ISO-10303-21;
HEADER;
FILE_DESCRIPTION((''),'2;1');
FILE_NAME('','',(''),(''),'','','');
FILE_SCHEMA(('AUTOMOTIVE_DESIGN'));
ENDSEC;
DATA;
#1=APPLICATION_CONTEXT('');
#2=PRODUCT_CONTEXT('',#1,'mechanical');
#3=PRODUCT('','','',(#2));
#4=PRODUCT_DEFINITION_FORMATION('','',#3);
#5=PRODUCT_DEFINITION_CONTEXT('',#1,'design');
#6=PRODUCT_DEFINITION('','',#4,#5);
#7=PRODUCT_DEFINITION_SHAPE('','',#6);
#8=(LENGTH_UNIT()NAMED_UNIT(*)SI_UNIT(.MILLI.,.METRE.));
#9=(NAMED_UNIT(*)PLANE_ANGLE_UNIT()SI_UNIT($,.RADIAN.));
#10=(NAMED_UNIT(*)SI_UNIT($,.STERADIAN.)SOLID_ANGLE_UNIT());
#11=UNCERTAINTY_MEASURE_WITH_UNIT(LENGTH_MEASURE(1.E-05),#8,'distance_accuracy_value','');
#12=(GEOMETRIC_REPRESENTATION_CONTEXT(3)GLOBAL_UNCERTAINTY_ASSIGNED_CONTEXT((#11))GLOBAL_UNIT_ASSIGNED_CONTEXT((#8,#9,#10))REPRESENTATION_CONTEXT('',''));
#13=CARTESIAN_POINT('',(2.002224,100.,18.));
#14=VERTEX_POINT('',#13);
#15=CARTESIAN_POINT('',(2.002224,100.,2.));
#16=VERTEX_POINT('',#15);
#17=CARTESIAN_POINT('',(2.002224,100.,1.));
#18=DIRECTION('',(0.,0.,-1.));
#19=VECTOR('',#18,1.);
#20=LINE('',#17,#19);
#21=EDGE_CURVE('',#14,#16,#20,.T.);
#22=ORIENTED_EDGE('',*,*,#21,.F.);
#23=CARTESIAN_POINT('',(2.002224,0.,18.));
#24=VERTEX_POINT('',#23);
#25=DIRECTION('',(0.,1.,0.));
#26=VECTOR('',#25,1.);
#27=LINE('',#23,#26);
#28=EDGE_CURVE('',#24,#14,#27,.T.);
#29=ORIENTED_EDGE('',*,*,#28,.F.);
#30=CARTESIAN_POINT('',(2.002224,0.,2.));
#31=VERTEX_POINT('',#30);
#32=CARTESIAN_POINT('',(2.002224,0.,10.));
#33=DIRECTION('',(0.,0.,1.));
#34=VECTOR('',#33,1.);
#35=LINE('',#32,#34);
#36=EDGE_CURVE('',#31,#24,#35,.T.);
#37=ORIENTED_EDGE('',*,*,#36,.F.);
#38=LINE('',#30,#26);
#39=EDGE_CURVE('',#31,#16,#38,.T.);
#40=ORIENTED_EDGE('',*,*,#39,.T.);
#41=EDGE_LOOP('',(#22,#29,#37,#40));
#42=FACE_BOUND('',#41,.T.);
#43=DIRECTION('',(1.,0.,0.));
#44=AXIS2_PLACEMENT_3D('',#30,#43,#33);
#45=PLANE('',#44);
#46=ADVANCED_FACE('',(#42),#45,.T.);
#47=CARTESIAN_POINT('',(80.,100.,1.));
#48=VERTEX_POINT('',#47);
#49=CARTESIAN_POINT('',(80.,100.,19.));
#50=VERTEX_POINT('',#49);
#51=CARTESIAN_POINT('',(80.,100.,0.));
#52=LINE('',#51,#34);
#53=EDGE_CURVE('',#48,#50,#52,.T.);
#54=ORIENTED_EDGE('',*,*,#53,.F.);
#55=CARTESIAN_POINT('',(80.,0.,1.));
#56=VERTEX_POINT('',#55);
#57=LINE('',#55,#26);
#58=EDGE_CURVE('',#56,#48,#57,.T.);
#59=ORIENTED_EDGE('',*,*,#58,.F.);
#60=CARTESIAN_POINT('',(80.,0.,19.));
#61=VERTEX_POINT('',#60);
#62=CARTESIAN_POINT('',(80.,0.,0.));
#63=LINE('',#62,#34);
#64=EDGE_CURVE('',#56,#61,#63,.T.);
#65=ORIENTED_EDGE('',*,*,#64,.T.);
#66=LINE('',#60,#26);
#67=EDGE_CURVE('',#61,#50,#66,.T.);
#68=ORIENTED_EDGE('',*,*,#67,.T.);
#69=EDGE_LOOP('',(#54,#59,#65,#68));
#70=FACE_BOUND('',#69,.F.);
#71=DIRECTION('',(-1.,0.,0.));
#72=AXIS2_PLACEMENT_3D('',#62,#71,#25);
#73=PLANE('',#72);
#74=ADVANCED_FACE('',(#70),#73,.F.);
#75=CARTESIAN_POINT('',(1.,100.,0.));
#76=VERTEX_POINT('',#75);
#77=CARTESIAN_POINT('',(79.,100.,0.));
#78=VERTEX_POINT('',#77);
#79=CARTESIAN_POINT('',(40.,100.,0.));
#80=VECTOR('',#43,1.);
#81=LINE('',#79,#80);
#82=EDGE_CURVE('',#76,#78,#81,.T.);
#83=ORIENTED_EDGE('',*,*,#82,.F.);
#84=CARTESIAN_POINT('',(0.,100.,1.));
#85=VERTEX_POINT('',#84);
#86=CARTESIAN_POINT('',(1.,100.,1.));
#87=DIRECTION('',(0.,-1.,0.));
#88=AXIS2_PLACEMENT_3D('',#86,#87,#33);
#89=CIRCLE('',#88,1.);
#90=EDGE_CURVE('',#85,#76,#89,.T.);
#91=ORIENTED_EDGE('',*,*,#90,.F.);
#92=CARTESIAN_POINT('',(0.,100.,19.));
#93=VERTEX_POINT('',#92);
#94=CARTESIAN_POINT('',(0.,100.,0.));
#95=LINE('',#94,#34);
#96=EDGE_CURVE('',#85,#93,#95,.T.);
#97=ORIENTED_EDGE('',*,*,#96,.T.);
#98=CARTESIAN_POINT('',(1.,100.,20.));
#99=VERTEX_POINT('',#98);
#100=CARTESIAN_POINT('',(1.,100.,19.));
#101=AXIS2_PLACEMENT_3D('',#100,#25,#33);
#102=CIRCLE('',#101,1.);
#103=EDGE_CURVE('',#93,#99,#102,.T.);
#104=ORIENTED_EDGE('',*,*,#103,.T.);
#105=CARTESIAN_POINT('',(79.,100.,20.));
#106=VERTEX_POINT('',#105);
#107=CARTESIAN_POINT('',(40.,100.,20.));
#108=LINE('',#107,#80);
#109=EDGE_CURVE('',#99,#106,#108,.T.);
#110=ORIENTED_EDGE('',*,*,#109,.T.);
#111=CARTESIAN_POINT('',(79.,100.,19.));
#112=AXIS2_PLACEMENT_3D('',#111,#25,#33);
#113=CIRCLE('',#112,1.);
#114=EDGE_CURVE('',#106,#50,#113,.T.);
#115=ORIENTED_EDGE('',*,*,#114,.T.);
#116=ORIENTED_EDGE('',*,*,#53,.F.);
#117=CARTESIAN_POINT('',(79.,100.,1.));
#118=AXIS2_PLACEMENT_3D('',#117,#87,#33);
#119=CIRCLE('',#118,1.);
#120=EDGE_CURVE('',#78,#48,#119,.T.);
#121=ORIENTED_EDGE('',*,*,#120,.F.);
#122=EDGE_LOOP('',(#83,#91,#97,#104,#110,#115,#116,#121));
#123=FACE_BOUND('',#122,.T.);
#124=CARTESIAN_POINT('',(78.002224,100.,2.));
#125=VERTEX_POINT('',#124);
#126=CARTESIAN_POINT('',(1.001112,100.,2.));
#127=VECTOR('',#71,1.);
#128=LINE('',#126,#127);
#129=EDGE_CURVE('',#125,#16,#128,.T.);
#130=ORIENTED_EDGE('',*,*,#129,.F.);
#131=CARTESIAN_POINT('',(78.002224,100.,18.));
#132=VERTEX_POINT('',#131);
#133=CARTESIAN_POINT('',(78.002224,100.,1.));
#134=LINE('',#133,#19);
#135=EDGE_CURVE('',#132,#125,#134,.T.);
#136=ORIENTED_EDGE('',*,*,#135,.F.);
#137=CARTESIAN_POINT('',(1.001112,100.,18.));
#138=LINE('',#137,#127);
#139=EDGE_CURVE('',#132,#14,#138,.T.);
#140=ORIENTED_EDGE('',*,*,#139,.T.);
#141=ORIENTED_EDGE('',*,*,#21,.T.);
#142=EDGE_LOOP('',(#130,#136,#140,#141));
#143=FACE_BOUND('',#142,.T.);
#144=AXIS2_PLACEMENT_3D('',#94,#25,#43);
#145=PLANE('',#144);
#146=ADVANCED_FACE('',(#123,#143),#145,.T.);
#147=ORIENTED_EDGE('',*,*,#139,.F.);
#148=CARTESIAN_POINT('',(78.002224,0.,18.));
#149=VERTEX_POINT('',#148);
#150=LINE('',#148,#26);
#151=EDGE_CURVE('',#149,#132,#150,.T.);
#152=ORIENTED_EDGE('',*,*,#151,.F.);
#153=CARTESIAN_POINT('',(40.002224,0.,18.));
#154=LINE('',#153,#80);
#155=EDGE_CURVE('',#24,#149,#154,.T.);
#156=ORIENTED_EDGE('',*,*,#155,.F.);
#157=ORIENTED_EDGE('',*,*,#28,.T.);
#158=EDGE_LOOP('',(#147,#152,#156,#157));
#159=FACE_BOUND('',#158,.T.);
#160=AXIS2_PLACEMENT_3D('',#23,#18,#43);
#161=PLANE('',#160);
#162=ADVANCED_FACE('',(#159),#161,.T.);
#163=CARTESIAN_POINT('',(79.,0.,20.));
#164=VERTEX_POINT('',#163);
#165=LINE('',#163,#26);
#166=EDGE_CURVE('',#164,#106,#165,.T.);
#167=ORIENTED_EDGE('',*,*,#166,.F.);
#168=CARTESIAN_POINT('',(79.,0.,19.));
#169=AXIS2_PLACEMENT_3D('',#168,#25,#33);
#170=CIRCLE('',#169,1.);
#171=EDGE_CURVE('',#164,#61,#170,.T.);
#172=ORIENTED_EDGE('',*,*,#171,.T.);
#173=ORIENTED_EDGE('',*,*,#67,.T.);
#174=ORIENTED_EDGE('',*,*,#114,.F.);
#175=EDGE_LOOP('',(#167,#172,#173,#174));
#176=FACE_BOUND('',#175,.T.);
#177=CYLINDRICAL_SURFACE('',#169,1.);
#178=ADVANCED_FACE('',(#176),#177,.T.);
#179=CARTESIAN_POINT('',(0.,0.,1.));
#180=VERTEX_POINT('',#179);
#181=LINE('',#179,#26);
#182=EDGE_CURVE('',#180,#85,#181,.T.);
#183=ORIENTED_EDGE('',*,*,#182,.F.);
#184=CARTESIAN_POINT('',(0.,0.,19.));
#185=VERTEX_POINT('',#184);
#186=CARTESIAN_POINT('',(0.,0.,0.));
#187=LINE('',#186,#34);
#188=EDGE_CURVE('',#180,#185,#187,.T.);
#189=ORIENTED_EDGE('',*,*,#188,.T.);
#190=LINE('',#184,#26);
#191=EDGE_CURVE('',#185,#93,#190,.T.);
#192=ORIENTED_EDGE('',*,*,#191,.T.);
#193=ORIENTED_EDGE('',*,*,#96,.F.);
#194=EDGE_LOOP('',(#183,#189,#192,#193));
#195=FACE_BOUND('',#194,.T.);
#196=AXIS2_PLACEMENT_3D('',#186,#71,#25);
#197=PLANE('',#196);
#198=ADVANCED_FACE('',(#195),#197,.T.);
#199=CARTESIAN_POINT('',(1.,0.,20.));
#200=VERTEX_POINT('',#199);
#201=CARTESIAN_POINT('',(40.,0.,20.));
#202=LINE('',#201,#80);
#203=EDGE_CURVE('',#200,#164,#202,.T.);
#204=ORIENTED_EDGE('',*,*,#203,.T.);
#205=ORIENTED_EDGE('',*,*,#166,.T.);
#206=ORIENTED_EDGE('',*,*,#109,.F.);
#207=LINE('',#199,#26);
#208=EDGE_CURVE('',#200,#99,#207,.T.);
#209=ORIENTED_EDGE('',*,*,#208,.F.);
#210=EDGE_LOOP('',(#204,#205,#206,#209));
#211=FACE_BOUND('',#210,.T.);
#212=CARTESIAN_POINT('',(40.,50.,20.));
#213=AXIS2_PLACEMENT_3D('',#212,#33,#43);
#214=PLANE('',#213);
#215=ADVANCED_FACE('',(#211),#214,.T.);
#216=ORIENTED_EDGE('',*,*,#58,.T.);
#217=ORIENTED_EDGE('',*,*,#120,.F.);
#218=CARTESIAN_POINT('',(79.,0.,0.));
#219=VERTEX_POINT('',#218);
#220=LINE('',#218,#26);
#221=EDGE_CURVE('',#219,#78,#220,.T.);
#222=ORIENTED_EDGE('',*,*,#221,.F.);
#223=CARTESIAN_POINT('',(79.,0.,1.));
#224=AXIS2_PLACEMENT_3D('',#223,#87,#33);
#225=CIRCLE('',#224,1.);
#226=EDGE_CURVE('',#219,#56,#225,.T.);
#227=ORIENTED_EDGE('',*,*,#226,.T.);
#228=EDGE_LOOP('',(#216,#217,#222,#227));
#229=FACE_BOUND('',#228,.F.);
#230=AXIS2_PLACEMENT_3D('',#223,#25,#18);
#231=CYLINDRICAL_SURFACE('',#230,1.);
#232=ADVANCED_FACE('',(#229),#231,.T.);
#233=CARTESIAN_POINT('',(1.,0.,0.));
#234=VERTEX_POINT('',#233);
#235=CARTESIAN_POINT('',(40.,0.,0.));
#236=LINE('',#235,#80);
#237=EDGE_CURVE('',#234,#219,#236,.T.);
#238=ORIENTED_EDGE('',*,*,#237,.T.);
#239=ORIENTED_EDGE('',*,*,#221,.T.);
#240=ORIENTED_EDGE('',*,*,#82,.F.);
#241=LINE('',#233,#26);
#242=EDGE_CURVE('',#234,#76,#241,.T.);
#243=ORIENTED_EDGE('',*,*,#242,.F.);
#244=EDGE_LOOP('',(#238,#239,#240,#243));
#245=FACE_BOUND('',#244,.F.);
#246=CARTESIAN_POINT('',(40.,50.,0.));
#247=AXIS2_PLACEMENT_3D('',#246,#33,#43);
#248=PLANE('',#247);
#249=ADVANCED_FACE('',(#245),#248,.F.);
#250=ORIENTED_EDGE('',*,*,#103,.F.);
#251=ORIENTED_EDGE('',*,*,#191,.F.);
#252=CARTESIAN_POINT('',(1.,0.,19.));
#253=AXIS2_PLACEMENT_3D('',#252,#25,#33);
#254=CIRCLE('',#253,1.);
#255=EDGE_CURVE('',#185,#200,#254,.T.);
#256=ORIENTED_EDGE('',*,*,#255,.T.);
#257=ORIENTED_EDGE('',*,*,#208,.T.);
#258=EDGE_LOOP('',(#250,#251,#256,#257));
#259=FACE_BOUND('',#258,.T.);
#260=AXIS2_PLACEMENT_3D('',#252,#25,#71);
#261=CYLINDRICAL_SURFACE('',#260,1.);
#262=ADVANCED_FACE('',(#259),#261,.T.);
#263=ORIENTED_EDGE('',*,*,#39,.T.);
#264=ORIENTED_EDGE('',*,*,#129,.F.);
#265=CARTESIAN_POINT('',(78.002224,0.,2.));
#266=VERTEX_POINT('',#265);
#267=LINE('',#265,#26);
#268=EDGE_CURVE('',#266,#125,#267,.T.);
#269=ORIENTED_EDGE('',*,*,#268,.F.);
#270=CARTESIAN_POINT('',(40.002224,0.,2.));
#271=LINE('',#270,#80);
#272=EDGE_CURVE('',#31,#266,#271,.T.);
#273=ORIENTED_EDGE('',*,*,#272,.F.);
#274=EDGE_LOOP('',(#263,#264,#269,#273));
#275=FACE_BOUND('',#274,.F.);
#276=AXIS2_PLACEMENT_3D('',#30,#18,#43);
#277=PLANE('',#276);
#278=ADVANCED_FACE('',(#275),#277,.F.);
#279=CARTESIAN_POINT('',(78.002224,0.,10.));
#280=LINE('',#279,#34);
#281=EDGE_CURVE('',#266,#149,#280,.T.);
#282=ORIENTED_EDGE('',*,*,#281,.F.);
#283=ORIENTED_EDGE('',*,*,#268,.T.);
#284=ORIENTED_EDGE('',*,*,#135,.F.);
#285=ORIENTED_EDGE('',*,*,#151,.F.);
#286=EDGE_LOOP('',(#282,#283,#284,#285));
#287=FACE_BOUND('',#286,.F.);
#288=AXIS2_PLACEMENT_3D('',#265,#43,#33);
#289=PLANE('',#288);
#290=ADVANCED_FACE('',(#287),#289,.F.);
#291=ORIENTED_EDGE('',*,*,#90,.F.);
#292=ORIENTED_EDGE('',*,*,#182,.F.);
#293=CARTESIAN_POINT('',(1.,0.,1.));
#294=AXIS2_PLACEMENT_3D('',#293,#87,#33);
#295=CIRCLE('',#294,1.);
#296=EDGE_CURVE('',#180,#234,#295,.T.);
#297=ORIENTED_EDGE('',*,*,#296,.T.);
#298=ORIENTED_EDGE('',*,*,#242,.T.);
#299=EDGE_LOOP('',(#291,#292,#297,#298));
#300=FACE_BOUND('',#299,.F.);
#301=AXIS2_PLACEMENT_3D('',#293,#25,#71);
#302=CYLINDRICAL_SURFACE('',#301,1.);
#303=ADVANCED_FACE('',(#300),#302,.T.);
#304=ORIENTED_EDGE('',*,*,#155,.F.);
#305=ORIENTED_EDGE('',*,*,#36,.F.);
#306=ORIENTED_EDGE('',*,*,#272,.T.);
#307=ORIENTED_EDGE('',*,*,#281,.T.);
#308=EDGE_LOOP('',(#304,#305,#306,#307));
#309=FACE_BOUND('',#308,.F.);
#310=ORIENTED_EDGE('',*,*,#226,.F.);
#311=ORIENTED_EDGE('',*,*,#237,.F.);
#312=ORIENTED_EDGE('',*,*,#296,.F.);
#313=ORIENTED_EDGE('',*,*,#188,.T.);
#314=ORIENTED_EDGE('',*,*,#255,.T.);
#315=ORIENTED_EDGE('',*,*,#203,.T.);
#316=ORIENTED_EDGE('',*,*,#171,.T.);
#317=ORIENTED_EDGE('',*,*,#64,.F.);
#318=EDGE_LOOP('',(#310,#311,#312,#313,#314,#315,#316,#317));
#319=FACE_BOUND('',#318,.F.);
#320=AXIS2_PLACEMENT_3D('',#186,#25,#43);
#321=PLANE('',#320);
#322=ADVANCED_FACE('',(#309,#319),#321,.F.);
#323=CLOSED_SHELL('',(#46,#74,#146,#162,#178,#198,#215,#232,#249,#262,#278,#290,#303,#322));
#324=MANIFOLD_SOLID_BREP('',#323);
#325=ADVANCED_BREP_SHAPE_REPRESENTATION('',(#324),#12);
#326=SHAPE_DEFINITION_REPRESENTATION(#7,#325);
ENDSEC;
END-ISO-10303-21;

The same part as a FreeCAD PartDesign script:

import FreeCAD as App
import Part
import Sketcher

V = App.Vector
Q = App.Units.Quantity


def edges_at(feature, points):
    """Names of the edges that pass closest to the given points."""
    edges = feature.Shape.Edges
    near = lambda p: min(range(len(edges)), key=lambda i: edges[i].distToShape(Part.Vertex(*p))[0])
    return sorted({f"Edge{near(p) + 1}" for p in points})


def add_polygon(sketch, points):
    """Adds a closed chain of lines whose ends are joined by coincident constraints."""
    first, n = sketch.GeometryCount, len(points)
    for a, b in zip(points, points[1:] + points[:1]):
        sketch.addGeometry(Part.LineSegment(App.Vector(*a, 0), App.Vector(*b, 0)), False)
    for i in range(n):
        sketch.addConstraint(Sketcher.Constraint("Coincident", first + i, 2, first + (i + 1) % n, 1))

doc = App.newDocument("Part")
body = doc.addObject("PartDesign::Body", "Body")

# Sketch on XY plane
sketch1 = body.newObject("Sketcher::SketchObject", "Sketch")
sketch1.AttachmentSupport = (doc.getObject("XY_Plane"), [""])
sketch1.MapMode = "FlatFace"
add_polygon(sketch1, [(0, 100), (0, 0), (80, 0), (80, 100)])  # lines 0-3
sketch1.addConstraint([
    Sketcher.Constraint("Vertical", 0),
    Sketcher.Constraint("Horizontal", 1),
    Sketcher.Constraint("Vertical", 2),
    Sketcher.Constraint("Horizontal", 3),
    Sketcher.Constraint("Coincident", 0, 2, -1, 1),
    Sketcher.Constraint("DistanceX", 1, 1, 1, 2, Q("80 mm")),
    Sketcher.Constraint("DistanceY", 0, 2, 0, 1, Q("100 mm")),
])
pad1 = body.newObject("PartDesign::Pad", "Pad")
pad1.Profile = sketch1
pad1.Length = 20

# Sketch on XZ plane
sketch2 = body.newObject("Sketcher::SketchObject", "Sketch001")
sketch2.AttachmentSupport = (doc.getObject("XZ_Plane"), [""])
sketch2.MapMode = "FlatFace"
add_polygon(sketch2, [(2.002224, 18), (2.002224, 2), (78.002224, 2), (78.002224, 18)])  # lines 0-3
sketch2.addConstraint([
    Sketcher.Constraint("Vertical", 0),
    Sketcher.Constraint("Horizontal", 1),
    Sketcher.Constraint("Vertical", 2),
    Sketcher.Constraint("Horizontal", 3),
    Sketcher.Constraint("DistanceX", 1, 1, 1, 2, Q("76 mm")),
    Sketcher.Constraint("DistanceY", 0, 2, 0, 1, Q("16 mm")),
    Sketcher.Constraint("DistanceY", -1, 1, 0, 2, Q("2 mm")),
    Sketcher.Constraint("DistanceX", -1, 1, 0, 2, Q("2.002224 mm")),
])
pocket1 = body.newObject("PartDesign::Pocket", "Pocket")
pocket1.Profile = sketch2
pocket1.Type = "ThroughAll"
doc.recompute()

fillet = body.newObject("PartDesign::Fillet", "Fillet")
fillet.Base = (pocket1, edges_at(pocket1, [
    (0, 50, 0),
    (80, 50, 0),
    (0, 50, 20),
    (80, 50, 20),
]))
fillet.Radius = 1

doc.recompute()
